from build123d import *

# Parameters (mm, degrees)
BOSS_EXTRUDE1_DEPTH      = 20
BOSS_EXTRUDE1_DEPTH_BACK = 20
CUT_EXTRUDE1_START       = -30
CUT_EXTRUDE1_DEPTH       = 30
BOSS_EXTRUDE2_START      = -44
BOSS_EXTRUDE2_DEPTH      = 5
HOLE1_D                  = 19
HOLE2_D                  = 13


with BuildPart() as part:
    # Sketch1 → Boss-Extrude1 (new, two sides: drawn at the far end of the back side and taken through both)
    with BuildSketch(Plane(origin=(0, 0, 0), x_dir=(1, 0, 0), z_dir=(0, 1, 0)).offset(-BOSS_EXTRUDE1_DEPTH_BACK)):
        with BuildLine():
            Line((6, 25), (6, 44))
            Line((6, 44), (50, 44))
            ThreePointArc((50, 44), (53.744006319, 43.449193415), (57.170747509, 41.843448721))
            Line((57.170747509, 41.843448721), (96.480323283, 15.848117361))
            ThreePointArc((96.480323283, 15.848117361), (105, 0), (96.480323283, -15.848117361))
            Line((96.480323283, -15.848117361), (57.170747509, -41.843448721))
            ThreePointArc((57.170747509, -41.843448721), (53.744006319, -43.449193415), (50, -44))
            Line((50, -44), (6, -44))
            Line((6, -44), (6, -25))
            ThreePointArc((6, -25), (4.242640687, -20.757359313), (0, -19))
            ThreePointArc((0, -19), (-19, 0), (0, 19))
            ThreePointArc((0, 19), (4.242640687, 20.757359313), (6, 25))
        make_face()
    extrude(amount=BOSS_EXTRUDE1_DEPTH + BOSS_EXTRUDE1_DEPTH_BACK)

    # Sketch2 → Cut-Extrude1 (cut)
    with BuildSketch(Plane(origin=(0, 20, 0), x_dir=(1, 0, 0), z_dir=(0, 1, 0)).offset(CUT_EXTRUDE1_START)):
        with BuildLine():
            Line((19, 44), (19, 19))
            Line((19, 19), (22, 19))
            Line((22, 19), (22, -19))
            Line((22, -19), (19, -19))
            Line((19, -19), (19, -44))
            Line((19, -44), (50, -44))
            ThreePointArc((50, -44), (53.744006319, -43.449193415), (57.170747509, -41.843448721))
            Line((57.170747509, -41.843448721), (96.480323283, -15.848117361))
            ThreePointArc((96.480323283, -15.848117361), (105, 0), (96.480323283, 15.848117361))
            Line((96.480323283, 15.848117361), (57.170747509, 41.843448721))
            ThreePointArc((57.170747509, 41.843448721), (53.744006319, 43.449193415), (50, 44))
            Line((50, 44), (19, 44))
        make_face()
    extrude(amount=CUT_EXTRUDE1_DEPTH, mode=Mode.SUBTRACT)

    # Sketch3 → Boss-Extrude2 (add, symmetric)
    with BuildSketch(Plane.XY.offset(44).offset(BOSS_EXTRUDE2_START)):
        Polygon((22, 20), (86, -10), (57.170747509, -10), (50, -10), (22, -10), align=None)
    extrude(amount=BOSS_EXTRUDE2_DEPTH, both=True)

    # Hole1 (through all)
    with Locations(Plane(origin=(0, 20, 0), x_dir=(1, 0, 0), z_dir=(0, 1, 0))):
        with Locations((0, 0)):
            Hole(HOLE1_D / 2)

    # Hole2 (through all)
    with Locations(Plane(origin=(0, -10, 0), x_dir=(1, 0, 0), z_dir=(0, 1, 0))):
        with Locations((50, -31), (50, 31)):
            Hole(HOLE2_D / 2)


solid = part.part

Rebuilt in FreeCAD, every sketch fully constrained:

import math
import FreeCAD as App
import Part
import Sketcher
from FreeCAD import Vector
Q = App.Units.Quantity


def add_polygon(sketch, points):
    """Adds a closed chain of lines whose ends are joined by coincident constraints."""
    first, n = sketch.GeometryCount, len(points)
    for a, b in zip(points, points[1:] + points[:1]):
        sketch.addGeometry(Part.LineSegment(App.Vector(*a, 0), App.Vector(*b, 0)), False)
    for i in range(n):
        sketch.addConstraint(Sketcher.Constraint("Coincident", first + i, 2, first + (i + 1) % n, 1))

doc = App.newDocument("Part")
body = doc.addObject("PartDesign::Body", "Body")

# Sketch on XZ plane
sketch1 = doc.addObject("Sketcher::SketchObject", "Sketch")
body.addObject(sketch1)
sketch1.AttachmentSupport = (doc.XZ_Plane, [""])
sketch1.MapMode = "FlatFace"
sketch1.addGeometry(Part.LineSegment(Vector(6, -44, 0), Vector(6, -25, 0)), False)
sketch1.addGeometry(Part.ArcOfCircle(Part.Circle(Vector(0, -25, 0), Vector(0, 0, 1), 6), math.radians(0), math.radians(90)), False)
sketch1.addGeometry(Part.ArcOfCircle(Part.Circle(Vector(0, 0, 0), Vector(0, 0, 1), 19), math.radians(90), math.radians(270)), False)
sketch1.addGeometry(Part.ArcOfCircle(Part.Circle(Vector(0, 25, 0), Vector(0, 0, 1), 6), math.radians(-90), math.radians(0)), False)
sketch1.addGeometry(Part.LineSegment(Vector(6, 25, 0), Vector(6, 44, 0)), False)
sketch1.addGeometry(Part.LineSegment(Vector(6, 44, 0), Vector(50, 44, 0)), False)
sketch1.addGeometry(Part.ArcOfCircle(Part.Circle(Vector(50, 31, 0), Vector(0, 0, 1), 13), math.radians(57), math.radians(90)), False)
sketch1.addGeometry(Part.LineSegment(Vector(57, 42, 0), Vector(96, 16, 0)), False)
sketch1.addGeometry(Part.ArcOfCircle(Part.Circle(Vector(86, 0, 0), Vector(0, 0, 1), 19), math.radians(-57), math.radians(57)), False)
sketch1.addGeometry(Part.LineSegment(Vector(96, -16, 0), Vector(57, -42, 0)), False)
sketch1.addGeometry(Part.ArcOfCircle(Part.Circle(Vector(50, -31, 0), Vector(0, 0, 1), 13), math.radians(-90), math.radians(-57)), False)
sketch1.addGeometry(Part.LineSegment(Vector(50, -44, 0), Vector(6, -44, 0)), False)
sketch1.addConstraint(Sketcher.Constraint("Tangent", 0, 2, 1, 1))
sketch1.addConstraint(Sketcher.Constraint("Tangent", 1, 2, 2, 2))
sketch1.addConstraint(Sketcher.Constraint("Tangent", 2, 1, 3, 1))
sketch1.addConstraint(Sketcher.Constraint("Tangent", 3, 2, 4, 1))
sketch1.addConstraint(Sketcher.Constraint("Coincident", 4, 2, 5, 1))
sketch1.addConstraint(Sketcher.Constraint("Tangent", 5, 2, 6, 2))
sketch1.addConstraint(Sketcher.Constraint("Tangent", 6, 1, 7, 1))
sketch1.addConstraint(Sketcher.Constraint("Tangent", 7, 2, 8, 2))
sketch1.addConstraint(Sketcher.Constraint("Tangent", 8, 1, 9, 1))
sketch1.addConstraint(Sketcher.Constraint("Tangent", 9, 2, 10, 2))
sketch1.addConstraint(Sketcher.Constraint("Tangent", 10, 1, 11, 1))
sketch1.addConstraint(Sketcher.Constraint("Coincident", 11, 2, 0, 1))
sketch1.addConstraint(Sketcher.Constraint("Vertical", 0))
sketch1.addConstraint(Sketcher.Constraint("Vertical", 4))
sketch1.addConstraint(Sketcher.Constraint("Horizontal", 5))
sketch1.addConstraint(Sketcher.Constraint("Horizontal", 11))
sketch1.addConstraint(Sketcher.Constraint("Coincident", 2, 3, -1, 1))
sketch1.addConstraint(Sketcher.Constraint("Equal", 1, 3))
sketch1.addConstraint(Sketcher.Constraint("Equal", 2, 8))
sketch1.addConstraint(Sketcher.Constraint("Equal", 6, 10))
sketch1.addConstraint(Sketcher.Constraint("Symmetric", 6, 3, 10, 3, -1))
sketch1.addConstraint(Sketcher.Constraint("PointOnObject", 1, 3, -2))
sketch1.addConstraint(Sketcher.Constraint("PointOnObject", 3, 3, -2))
sketch1.addConstraint(Sketcher.Constraint("PointOnObject", 8, 3, -1))
sketch1.addConstraint(Sketcher.Constraint("Radius", 1, Q("6 mm")))
sketch1.addConstraint(Sketcher.Constraint("Radius", 2, Q("19 mm")))
sketch1.addConstraint(Sketcher.Constraint("Radius", 6, Q("13 mm")))
sketch1.addConstraint(Sketcher.Constraint("DistanceX", 5, 1, 5, 2, Q("44 mm")))
sketch1.addConstraint(Sketcher.Constraint("DistanceY", 0, 1, 0, 2, Q("19 mm")))
sketch1.addConstraint(Sketcher.Constraint("DistanceX", -1, 1, 8, 3, Q("86 mm")))
pad1 = doc.addObject("PartDesign::Pad", "Pad")
body.addObject(pad1)
pad1.Profile = sketch1
pad1.Type = "TwoLengths"
pad1.Length = 20
pad1.Length2 = 20
pad1.Reversed = True

# Sketch on XZ plane
sketch2 = doc.addObject("Sketcher::SketchObject", "Sketch001")
body.addObject(sketch2)
sketch2.AttachmentSupport = (doc.XZ_Plane, [""])
sketch2.MapMode = "FlatFace"
sketch2.AttachmentOffset = App.Placement(Vector(0, 0, 10), App.Rotation())
sketch2.addGeometry(Part.LineSegment(Vector(19, -44, 0), Vector(19, -19, 0)), False)
sketch2.addGeometry(Part.LineSegment(Vector(19, -19, 0), Vector(22, -19, 0)), False)
sketch2.addGeometry(Part.LineSegment(Vector(22, -19, 0), Vector(22, 19, 0)), False)
sketch2.addGeometry(Part.LineSegment(Vector(22, 19, 0), Vector(19, 19, 0)), False)
sketch2.addGeometry(Part.LineSegment(Vector(19, 19, 0), Vector(19, 44, 0)), False)
sketch2.addGeometry(Part.LineSegment(Vector(19, 44, 0), Vector(50, 44, 0)), False)
sketch2.addGeometry(Part.ArcOfCircle(Part.Circle(Vector(50, 31, 0), Vector(0, 0, 1), 13), math.radians(57), math.radians(90)), False)
sketch2.addGeometry(Part.LineSegment(Vector(57.2, 41.8, 0), Vector(96.5, 15.8, 0)), False)
sketch2.addGeometry(Part.ArcOfCircle(Part.Circle(Vector(86, 0, 0), Vector(0, 0, 1), 19), math.radians(-57), math.radians(57)), False)
sketch2.addGeometry(Part.LineSegment(Vector(96.5, -15.8, 0), Vector(57.2, -41.8, 0)), False)
sketch2.addGeometry(Part.ArcOfCircle(Part.Circle(Vector(50, -31, 0), Vector(0, 0, 1), 13), math.radians(-90), math.radians(-57)), False)
sketch2.addGeometry(Part.LineSegment(Vector(50, -44, 0), Vector(19, -44, 0)), False)
sketch2.addConstraint(Sketcher.Constraint("Coincident", 0, 2, 1, 1))
sketch2.addConstraint(Sketcher.Constraint("Coincident", 1, 2, 2, 1))
sketch2.addConstraint(Sketcher.Constraint("Coincident", 2, 2, 3, 1))
sketch2.addConstraint(Sketcher.Constraint("Coincident", 3, 2, 4, 1))
sketch2.addConstraint(Sketcher.Constraint("Coincident", 4, 2, 5, 1))
sketch2.addConstraint(Sketcher.Constraint("Tangent", 5, 2, 6, 2))
sketch2.addConstraint(Sketcher.Constraint("Tangent", 6, 1, 7, 1))
sketch2.addConstraint(Sketcher.Constraint("Tangent", 7, 2, 8, 2))
sketch2.addConstraint(Sketcher.Constraint("Tangent", 8, 1, 9, 1))
sketch2.addConstraint(Sketcher.Constraint("Tangent", 9, 2, 10, 2))
sketch2.addConstraint(Sketcher.Constraint("Tangent", 10, 1, 11, 1))
sketch2.addConstraint(Sketcher.Constraint("Coincident", 11, 2, 0, 1))
sketch2.addConstraint(Sketcher.Constraint("Vertical", 0))
sketch2.addConstraint(Sketcher.Constraint("Horizontal", 1))
sketch2.addConstraint(Sketcher.Constraint("Vertical", 2))
sketch2.addConstraint(Sketcher.Constraint("Horizontal", 3))
sketch2.addConstraint(Sketcher.Constraint("Vertical", 4))
sketch2.addConstraint(Sketcher.Constraint("Horizontal", 5))
sketch2.addConstraint(Sketcher.Constraint("Horizontal", 11))
sketch2.addConstraint(Sketcher.Constraint("Equal", 6, 10))
sketch2.addConstraint(Sketcher.Constraint("Symmetric", 6, 3, 10, 3, -1))
sketch2.addConstraint(Sketcher.Constraint("Symmetric", 0, 2, 3, 2, -1))
sketch2.addConstraint(Sketcher.Constraint("PointOnObject", 8, 3, -1))
sketch2.addConstraint(Sketcher.Constraint("Radius", 6, Q("13 mm")))
sketch2.addConstraint(Sketcher.Constraint("Radius", 8, Q("19 mm")))
sketch2.addConstraint(Sketcher.Constraint("DistanceX", 1, 1, 1, 2, Q("3 mm")))
sketch2.addConstraint(Sketcher.Constraint("DistanceX", 5, 1, 5, 2, Q("31 mm")))
sketch2.addConstraint(Sketcher.Constraint("DistanceY", 0, 1, 0, 2, Q("25 mm")))
sketch2.addConstraint(Sketcher.Constraint("DistanceY", 2, 1, 2, 2, Q("38 mm")))
sketch2.addConstraint(Sketcher.Constraint("DistanceX", -1, 1, 6, 3, Q("50 mm")))
sketch2.addConstraint(Sketcher.Constraint("DistanceX", -1, 1, 8, 3, Q("86 mm")))
pocket1 = doc.addObject("PartDesign::Pocket", "Pocket")
body.addObject(pocket1)
pocket1.Profile = sketch2
pocket1.Length = 30

# Sketch on XY plane
sketch3 = doc.addObject("Sketcher::SketchObject", "Sketch002")
body.addObject(sketch3)
sketch3.AttachmentSupport = (doc.XY_Plane, [""])
sketch3.MapMode = "FlatFace"
add_polygon(sketch3, [(86, -10), (22, 20), (22, -10)])  # lines 0-2
sketch3.addConstraint(Sketcher.Constraint("Vertical", 1))
sketch3.addConstraint(Sketcher.Constraint("Horizontal", 2))
sketch3.addConstraint(Sketcher.Constraint("DistanceX", 2, 1, 2, 2, Q("64 mm")))
sketch3.addConstraint(Sketcher.Constraint("DistanceY", 1, 2, 1, 1, Q("30 mm")))
sketch3.addConstraint(Sketcher.Constraint("DistanceX", -1, 1, 0, 2, Q("22 mm")))
sketch3.addConstraint(Sketcher.Constraint("DistanceY", -1, 1, 0, 2, Q("20 mm")))
pad2 = doc.addObject("PartDesign::Pad", "Pad001")
body.addObject(pad2)
pad2.Profile = sketch3
pad2.Length = 10
pad2.Midplane = True

# Sketch on XZ plane
sketch4 = doc.addObject("Sketcher::SketchObject", "Sketch003")
body.addObject(sketch4)
sketch4.AttachmentSupport = (doc.XZ_Plane, [""])
sketch4.MapMode = "FlatFace"
sketch4.AttachmentOffset = App.Placement(Vector(0, 0, -20), App.Rotation())
sketch4.addGeometry(Part.Circle(Vector(0, 0, 0), Vector(0, 0, 1), 10), False)
sketch4.addConstraint(Sketcher.Constraint("Coincident", 0, 3, -1, 1))
sketch4.addConstraint(Sketcher.Constraint("Diameter", 0, Q("19 mm")))
doc.recompute()
hole = doc.addObject("PartDesign::Hole", "Hole")
body.addObject(hole)
hole.Profile = sketch4
hole.ThreadType = "None"
hole.Diameter = 19
hole.DepthType = "ThroughAll"
hole.Reversed = True

# Sketch on XZ plane
sketch5 = doc.addObject("Sketcher::SketchObject", "Sketch004")
body.addObject(sketch5)
sketch5.AttachmentSupport = (doc.XZ_Plane, [""])
sketch5.MapMode = "FlatFace"
sketch5.AttachmentOffset = App.Placement(Vector(0, 0, 10), App.Rotation())
sketch5.addGeometry(Part.Circle(Vector(50, 31, 0), Vector(0, 0, 1), 6), False)
sketch5.addGeometry(Part.Circle(Vector(50, -31, 0), Vector(0, 0, 1), 6), False)
sketch5.addConstraint(Sketcher.Constraint("Equal", 0, 1))
sketch5.addConstraint(Sketcher.Constraint("Symmetric", 0, 3, 1, 3, -1))
sketch5.addConstraint(Sketcher.Constraint("Diameter", 0, Q("13 mm")))
sketch5.addConstraint(Sketcher.Constraint("DistanceX", -1, 1, 0, 3, Q("50 mm")))
sketch5.addConstraint(Sketcher.Constraint("DistanceY", -1, 1, 0, 3, Q("31 mm")))
doc.recompute()
hole2 = doc.addObject("PartDesign::Hole", "Hole001")
body.addObject(hole2)
hole2.Profile = sketch5
hole2.ThreadType = "None"
hole2.Diameter = 13
hole2.DepthType = "ThroughAll"
hole2.Reversed = True

doc.recompute()
